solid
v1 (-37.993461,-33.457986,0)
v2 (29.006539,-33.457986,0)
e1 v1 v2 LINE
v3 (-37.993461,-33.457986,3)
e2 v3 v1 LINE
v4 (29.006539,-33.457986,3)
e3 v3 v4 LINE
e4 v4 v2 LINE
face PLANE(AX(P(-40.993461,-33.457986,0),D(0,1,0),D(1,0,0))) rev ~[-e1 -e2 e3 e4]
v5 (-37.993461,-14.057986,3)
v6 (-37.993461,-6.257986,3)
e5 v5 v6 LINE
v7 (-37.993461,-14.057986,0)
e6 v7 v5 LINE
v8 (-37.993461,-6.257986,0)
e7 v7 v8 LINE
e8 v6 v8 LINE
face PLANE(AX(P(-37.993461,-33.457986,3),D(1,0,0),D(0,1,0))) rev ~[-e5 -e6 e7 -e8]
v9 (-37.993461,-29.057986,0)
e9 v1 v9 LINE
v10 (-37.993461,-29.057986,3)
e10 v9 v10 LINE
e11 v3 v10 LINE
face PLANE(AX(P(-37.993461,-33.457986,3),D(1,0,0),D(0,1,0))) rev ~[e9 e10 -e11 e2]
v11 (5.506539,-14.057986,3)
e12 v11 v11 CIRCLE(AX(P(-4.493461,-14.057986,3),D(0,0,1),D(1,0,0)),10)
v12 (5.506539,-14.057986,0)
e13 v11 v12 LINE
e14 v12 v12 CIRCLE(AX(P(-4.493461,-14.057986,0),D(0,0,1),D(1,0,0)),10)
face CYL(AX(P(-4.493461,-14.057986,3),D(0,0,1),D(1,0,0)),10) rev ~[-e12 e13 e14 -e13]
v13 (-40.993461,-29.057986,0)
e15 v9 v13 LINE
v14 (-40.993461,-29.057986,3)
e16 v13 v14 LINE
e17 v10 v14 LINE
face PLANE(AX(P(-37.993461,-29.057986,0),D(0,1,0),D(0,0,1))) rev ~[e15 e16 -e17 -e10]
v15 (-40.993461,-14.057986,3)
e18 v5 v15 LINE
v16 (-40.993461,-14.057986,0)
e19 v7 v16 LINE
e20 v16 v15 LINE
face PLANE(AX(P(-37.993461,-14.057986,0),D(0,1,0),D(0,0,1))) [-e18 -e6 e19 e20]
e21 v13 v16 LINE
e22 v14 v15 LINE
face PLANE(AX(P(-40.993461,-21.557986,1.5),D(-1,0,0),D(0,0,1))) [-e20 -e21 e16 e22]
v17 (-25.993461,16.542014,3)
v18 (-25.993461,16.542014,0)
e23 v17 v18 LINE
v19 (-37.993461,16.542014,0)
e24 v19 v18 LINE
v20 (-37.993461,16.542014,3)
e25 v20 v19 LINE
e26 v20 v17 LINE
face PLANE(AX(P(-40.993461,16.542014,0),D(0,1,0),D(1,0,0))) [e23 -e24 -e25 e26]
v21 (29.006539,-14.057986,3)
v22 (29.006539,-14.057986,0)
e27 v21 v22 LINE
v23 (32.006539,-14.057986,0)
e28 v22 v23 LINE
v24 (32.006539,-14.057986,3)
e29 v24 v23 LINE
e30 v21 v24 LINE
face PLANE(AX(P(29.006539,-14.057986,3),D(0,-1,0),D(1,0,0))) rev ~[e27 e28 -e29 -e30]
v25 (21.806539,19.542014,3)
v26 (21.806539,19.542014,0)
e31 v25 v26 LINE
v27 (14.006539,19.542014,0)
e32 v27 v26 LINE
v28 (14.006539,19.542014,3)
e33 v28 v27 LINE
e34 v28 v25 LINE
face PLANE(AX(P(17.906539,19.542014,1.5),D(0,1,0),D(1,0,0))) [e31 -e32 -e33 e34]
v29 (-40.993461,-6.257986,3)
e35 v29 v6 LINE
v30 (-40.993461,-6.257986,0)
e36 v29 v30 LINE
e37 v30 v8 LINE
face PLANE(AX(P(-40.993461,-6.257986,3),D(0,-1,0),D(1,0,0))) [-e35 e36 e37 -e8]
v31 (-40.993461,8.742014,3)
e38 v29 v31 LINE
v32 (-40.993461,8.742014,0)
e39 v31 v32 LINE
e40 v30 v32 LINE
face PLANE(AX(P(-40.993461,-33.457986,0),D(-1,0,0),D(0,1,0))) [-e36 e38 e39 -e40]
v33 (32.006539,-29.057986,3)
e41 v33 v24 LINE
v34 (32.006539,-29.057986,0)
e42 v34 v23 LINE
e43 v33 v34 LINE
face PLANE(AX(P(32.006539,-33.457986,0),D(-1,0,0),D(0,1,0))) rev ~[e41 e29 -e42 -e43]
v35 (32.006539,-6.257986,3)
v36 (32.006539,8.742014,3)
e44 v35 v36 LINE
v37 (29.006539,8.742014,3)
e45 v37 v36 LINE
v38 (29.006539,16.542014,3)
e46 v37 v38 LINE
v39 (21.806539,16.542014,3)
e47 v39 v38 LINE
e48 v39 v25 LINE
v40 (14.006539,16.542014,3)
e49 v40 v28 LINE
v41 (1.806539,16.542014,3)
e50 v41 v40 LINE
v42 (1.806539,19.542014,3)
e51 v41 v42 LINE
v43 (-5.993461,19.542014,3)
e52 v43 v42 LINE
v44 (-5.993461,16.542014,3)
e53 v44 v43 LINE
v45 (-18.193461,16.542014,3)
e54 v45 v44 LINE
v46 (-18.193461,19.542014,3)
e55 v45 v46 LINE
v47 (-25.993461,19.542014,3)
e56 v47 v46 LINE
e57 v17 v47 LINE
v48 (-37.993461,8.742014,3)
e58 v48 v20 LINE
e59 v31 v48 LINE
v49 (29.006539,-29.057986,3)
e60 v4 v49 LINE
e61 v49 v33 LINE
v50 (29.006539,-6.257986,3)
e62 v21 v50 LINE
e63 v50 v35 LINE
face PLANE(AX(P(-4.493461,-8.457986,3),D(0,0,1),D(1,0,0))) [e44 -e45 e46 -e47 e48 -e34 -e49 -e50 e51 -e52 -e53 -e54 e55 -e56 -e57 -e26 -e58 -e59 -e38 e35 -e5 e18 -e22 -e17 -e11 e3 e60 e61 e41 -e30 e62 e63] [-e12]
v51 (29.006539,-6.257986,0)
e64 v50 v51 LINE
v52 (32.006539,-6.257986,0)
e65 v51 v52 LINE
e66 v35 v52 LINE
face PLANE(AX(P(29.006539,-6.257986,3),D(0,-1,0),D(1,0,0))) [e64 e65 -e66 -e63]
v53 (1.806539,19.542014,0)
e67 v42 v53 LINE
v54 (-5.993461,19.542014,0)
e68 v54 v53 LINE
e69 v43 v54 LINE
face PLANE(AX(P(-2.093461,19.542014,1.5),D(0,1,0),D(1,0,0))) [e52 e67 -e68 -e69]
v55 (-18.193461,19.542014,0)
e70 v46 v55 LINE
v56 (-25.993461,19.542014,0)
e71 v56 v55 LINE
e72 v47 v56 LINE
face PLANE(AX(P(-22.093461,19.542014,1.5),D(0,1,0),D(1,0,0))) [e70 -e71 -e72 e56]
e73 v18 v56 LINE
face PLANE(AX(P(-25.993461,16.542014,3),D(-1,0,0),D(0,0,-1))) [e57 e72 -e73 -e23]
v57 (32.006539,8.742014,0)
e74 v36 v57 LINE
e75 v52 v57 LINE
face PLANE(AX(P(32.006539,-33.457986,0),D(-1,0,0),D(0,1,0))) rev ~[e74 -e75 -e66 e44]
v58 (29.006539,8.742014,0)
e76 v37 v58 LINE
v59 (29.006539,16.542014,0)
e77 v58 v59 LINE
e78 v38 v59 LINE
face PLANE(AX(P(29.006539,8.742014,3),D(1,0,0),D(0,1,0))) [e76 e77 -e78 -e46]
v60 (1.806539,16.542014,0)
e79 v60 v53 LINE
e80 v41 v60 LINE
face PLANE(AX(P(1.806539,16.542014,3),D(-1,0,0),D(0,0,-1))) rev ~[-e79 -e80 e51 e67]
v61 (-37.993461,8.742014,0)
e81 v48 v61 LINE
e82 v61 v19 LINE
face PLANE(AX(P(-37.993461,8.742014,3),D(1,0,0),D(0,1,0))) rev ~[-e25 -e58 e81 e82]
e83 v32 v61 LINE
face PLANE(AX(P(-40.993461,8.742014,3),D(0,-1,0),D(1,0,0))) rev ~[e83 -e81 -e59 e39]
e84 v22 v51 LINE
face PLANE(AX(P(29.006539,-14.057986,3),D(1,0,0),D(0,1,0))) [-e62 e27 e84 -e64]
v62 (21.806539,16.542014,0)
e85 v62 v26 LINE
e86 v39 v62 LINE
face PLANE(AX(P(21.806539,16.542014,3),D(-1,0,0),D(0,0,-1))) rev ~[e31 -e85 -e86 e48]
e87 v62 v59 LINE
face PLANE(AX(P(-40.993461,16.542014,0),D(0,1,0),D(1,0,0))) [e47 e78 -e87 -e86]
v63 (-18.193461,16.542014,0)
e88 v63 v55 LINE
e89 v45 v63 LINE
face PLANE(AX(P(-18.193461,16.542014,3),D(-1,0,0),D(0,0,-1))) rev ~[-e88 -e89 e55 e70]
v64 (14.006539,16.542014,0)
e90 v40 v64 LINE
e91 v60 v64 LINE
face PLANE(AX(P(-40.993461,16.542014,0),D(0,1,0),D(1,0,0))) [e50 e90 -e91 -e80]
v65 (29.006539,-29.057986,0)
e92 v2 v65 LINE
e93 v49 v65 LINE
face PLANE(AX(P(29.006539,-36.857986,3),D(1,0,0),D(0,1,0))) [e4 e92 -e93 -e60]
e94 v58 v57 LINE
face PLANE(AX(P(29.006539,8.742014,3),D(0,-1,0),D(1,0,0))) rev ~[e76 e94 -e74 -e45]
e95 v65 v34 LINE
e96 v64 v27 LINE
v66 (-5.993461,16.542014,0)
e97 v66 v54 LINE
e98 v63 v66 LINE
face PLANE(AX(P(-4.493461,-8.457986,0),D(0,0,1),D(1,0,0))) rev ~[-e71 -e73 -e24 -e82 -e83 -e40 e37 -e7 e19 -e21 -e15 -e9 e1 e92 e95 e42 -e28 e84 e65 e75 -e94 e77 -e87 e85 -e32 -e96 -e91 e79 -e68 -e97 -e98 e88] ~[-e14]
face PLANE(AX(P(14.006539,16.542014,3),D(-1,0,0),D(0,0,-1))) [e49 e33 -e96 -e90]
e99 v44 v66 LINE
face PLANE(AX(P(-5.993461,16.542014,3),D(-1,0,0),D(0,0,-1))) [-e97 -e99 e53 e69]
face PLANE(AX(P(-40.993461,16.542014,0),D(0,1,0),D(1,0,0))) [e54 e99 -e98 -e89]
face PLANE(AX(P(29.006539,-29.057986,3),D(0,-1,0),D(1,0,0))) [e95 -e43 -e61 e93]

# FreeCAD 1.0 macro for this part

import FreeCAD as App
import Part
import Sketcher

V = App.Vector
Q = App.Units.Quantity

doc = App.newDocument("Part")
body = doc.addObject("PartDesign::Body", "Body")

# Sketch on XY plane
sketch1 = body.newObject("Sketcher::SketchObject", "Sketch")
sketch1.AttachmentSupport = (doc.getObject("XY_Plane"), [""])
sketch1.MapMode = "FlatFace"
sketch1.addGeometry(Part.LineSegment(V(-41, 17, 0), V(-41, -33, 0)), False)
sketch1.addGeometry(Part.LineSegment(V(-41, -33, 0), V(32, -33, 0)), False)
sketch1.addGeometry(Part.LineSegment(V(32, -33, 0), V(32, 17, 0)), False)
sketch1.addGeometry(Part.LineSegment(V(32, 17, 0), V(-41, 17, 0)), False)
sketch1.addConstraint(Sketcher.Constraint("Coincident", 0, 2, 1, 1))
sketch1.addConstraint(Sketcher.Constraint("Coincident", 1, 2, 2, 1))
sketch1.addConstraint(Sketcher.Constraint("Coincident", 2, 2, 3, 1))
sketch1.addConstraint(Sketcher.Constraint("Coincident", 3, 2, 0, 1))
sketch1.addConstraint(Sketcher.Constraint("Vertical", 0))
sketch1.addConstraint(Sketcher.Constraint("Horizontal", 1))
sketch1.addConstraint(Sketcher.Constraint("Vertical", 2))
sketch1.addConstraint(Sketcher.Constraint("Horizontal", 3))
sketch1.addConstraint(Sketcher.Constraint("DistanceX", 1, 1, 1, 2, Q("73 mm")))
sketch1.addConstraint(Sketcher.Constraint("DistanceY", 0, 2, 0, 1, Q("50 mm")))
sketch1.addConstraint(Sketcher.Constraint("DistanceX", 0, 2, -1, 1, Q("40.993461 mm")))
sketch1.addConstraint(Sketcher.Constraint("DistanceY", 0, 2, -1, 1, Q("33.457986 mm")))
pad1 = body.newObject("PartDesign::Pad", "Pad")
pad1.Profile = sketch1
pad1.Length = 3

# Sketch on XY plane
sketch2 = body.newObject("Sketcher::SketchObject", "Sketch001")
sketch2.AttachmentSupport = (doc.getObject("XY_Plane"), [""])
sketch2.MapMode = "FlatFace"
sketch2.AttachmentOffset = App.Placement(V(0, 0, 3), App.Rotation())
sketch2.addGeometry(Part.LineSegment(V(-41, 16.5, 0), V(-41, 8.7, 0)), False)
sketch2.addGeometry(Part.LineSegment(V(-41, 8.7, 0), V(-38, 8.7, 0)), False)
sketch2.addGeometry(Part.LineSegment(V(-38, 8.7, 0), V(-38, 16.5, 0)), False)
sketch2.addGeometry(Part.LineSegment(V(-38, 16.5, 0), V(-41, 16.5, 0)), False)
sketch2.addConstraint(Sketcher.Constraint("Coincident", 0, 2, 1, 1))
sketch2.addConstraint(Sketcher.Constraint("Coincident", 1, 2, 2, 1))
sketch2.addConstraint(Sketcher.Constraint("Coincident", 2, 2, 3, 1))
sketch2.addConstraint(Sketcher.Constraint("Coincident", 3, 2, 0, 1))
sketch2.addConstraint(Sketcher.Constraint("Vertical", 0))
sketch2.addConstraint(Sketcher.Constraint("Horizontal", 1))
sketch2.addConstraint(Sketcher.Constraint("Vertical", 2))
sketch2.addConstraint(Sketcher.Constraint("Horizontal", 3))
sketch2.addConstraint(Sketcher.Constraint("DistanceX", 1, 1, 1, 2, Q("3 mm")))
sketch2.addConstraint(Sketcher.Constraint("DistanceY", 0, 2, 0, 1, Q("7.8 mm")))
sketch2.addConstraint(Sketcher.Constraint("DistanceX", 0, 2, -1, 1, Q("40.993461 mm")))
sketch2.addConstraint(Sketcher.Constraint("DistanceY", -1, 1, 0, 2, Q("8.742014 mm")))
pocket1 = body.newObject("PartDesign::Pocket", "Pocket")
pocket1.Profile = sketch2
pocket1.Type = "ThroughAll"
doc.recompute()

linearpattern = body.newObject("PartDesign::LinearPattern", "LinearPattern")
linearpattern.Originals = [pocket1]
linearpattern.Direction = (doc.getObject("Y_Axis"), [""])
linearpattern.Mode = "offset"
linearpattern.Offset = 22.8
linearpattern.Occurrences = 3
linearpattern.Reversed = True
body.Tip = linearpattern

# Sketch on XY plane
sketch3 = body.newObject("Sketcher::SketchObject", "Sketch002")
sketch3.AttachmentSupport = (doc.getObject("XY_Plane"), [""])
sketch3.MapMode = "FlatFace"
sketch3.AttachmentOffset = App.Placement(V(0, 0, 3), App.Rotation())
sketch3.addGeometry(Part.LineSegment(V(29, 16.5, 0), V(29, 8.7, 0)), False)
sketch3.addGeometry(Part.LineSegment(V(29, 8.7, 0), V(32, 8.7, 0)), False)
sketch3.addGeometry(Part.LineSegment(V(32, 8.7, 0), V(32, 16.5, 0)), False)
sketch3.addGeometry(Part.LineSegment(V(32, 16.5, 0), V(29, 16.5, 0)), False)
sketch3.addConstraint(Sketcher.Constraint("Coincident", 0, 2, 1, 1))
sketch3.addConstraint(Sketcher.Constraint("Coincident", 1, 2, 2, 1))
sketch3.addConstraint(Sketcher.Constraint("Coincident", 2, 2, 3, 1))
sketch3.addConstraint(Sketcher.Constraint("Coincident", 3, 2, 0, 1))
sketch3.addConstraint(Sketcher.Constraint("Vertical", 0))
sketch3.addConstraint(Sketcher.Constraint("Horizontal", 1))
sketch3.addConstraint(Sketcher.Constraint("Vertical", 2))
sketch3.addConstraint(Sketcher.Constraint("Horizontal", 3))
sketch3.addConstraint(Sketcher.Constraint("DistanceX", 1, 1, 1, 2, Q("3 mm")))
sketch3.addConstraint(Sketcher.Constraint("DistanceY", 0, 2, 0, 1, Q("7.8 mm")))
sketch3.addConstraint(Sketcher.Constraint("DistanceX", -1, 1, 0, 2, Q("29.006539 mm")))
sketch3.addConstraint(Sketcher.Constraint("DistanceY", -1, 1, 0, 2, Q("8.742014 mm")))
pocket2 = body.newObject("PartDesign::Pocket", "Pocket001")
pocket2.Profile = sketch3
pocket2.Type = "ThroughAll"
doc.recompute()

linearpattern2 = body.newObject("PartDesign::LinearPattern", "LinearPattern001")
linearpattern2.Originals = [pocket2]
linearpattern2.Direction = (doc.getObject("Y_Axis"), [""])
linearpattern2.Mode = "offset"
linearpattern2.Offset = 22.8
linearpattern2.Occurrences = 4
linearpattern2.Reversed = True
body.Tip = linearpattern2

# Sketch on XY plane
sketch4 = body.newObject("Sketcher::SketchObject", "Sketch003")
sketch4.AttachmentSupport = (doc.getObject("XY_Plane"), [""])
sketch4.MapMode = "FlatFace"
sketch4.AttachmentOffset = App.Placement(V(0, 0, 3), App.Rotation())
sketch4.addGeometry(Part.LineSegment(V(-41, -14.1, 0), V(-41, -33.5, 0)), False)
sketch4.addGeometry(Part.LineSegment(V(-41, -33.5, 0), V(-38, -33.5, 0)), False)
sketch4.addGeometry(Part.LineSegment(V(-38, -33.5, 0), V(-38, -14.1, 0)), False)
sketch4.addGeometry(Part.LineSegment(V(-38, -14.1, 0), V(-41, -14.1, 0)), False)
sketch4.addConstraint(Sketcher.Constraint("Coincident", 0, 2, 1, 1))
sketch4.addConstraint(Sketcher.Constraint("Coincident", 1, 2, 2, 1))
sketch4.addConstraint(Sketcher.Constraint("Coincident", 2, 2, 3, 1))
sketch4.addConstraint(Sketcher.Constraint("Coincident", 3, 2, 0, 1))
sketch4.addConstraint(Sketcher.Constraint("Vertical", 0))
sketch4.addConstraint(Sketcher.Constraint("Horizontal", 1))
sketch4.addConstraint(Sketcher.Constraint("Vertical", 2))
sketch4.addConstraint(Sketcher.Constraint("Horizontal", 3))
sketch4.addConstraint(Sketcher.Constraint("DistanceX", 1, 1, 1, 2, Q("3 mm")))
sketch4.addConstraint(Sketcher.Constraint("DistanceY", 0, 2, 0, 1, Q("19.4 mm")))
sketch4.addConstraint(Sketcher.Constraint("DistanceX", 0, 2, -1, 1, Q("40.993461 mm")))
sketch4.addConstraint(Sketcher.Constraint("DistanceY", 0, 2, -1, 1, Q("33.457986 mm")))
pocket3 = body.newObject("PartDesign::Pocket", "Pocket002")
pocket3.Profile = sketch4
pocket3.Length = 10

# Sketch on XZ plane
sketch5 = body.newObject("Sketcher::SketchObject", "Sketch004")
sketch5.AttachmentSupport = (doc.getObject("XZ_Plane"), [""])
sketch5.MapMode = "FlatFace"
sketch5.AttachmentOffset = App.Placement(V(0, 0, -16.542014), App.Rotation())
sketch5.addGeometry(Part.LineSegment(V(-26, 0, 0), V(-26, 3, 0)), False)
sketch5.addGeometry(Part.LineSegment(V(-26, 3, 0), V(-18.2, 3, 0)), False)
sketch5.addGeometry(Part.LineSegment(V(-18.2, 3, 0), V(-18.2, 0, 0)), False)
sketch5.addGeometry(Part.LineSegment(V(-18.2, 0, 0), V(-26, 0, 0)), False)
sketch5.addConstraint(Sketcher.Constraint("Coincident", 0, 2, 1, 1))
sketch5.addConstraint(Sketcher.Constraint("Coincident", 1, 2, 2, 1))
sketch5.addConstraint(Sketcher.Constraint("Coincident", 2, 2, 3, 1))
sketch5.addConstraint(Sketcher.Constraint("Coincident", 3, 2, 0, 1))
sketch5.addConstraint(Sketcher.Constraint("Vertical", 0))
sketch5.addConstraint(Sketcher.Constraint("Horizontal", 1))
sketch5.addConstraint(Sketcher.Constraint("Vertical", 2))
sketch5.addConstraint(Sketcher.Constraint("Horizontal", 3))
sketch5.addConstraint(Sketcher.Constraint("PointOnObject", 2, 2, -1))
sketch5.addConstraint(Sketcher.Constraint("DistanceY", 0, 1, 0, 2, Q("3 mm")))
sketch5.addConstraint(Sketcher.Constraint("DistanceX", 1, 1, 1, 2, Q("7.8 mm")))
sketch5.addConstraint(Sketcher.Constraint("DistanceX", 0, 2, -1, 1, Q("25.993461 mm")))
pad2 = body.newObject("PartDesign::Pad", "Pad001")
pad2.Profile = sketch5
pad2.Length = 3
pad2.Reversed = True
doc.recompute()

linearpattern3 = body.newObject("PartDesign::LinearPattern", "LinearPattern002")
linearpattern3.Originals = [pad2]
linearpattern3.Direction = (doc.getObject("X_Axis"), [""])
linearpattern3.Mode = "offset"
linearpattern3.Offset = 20
linearpattern3.Occurrences = 3
body.Tip = linearpattern3

# Sketch on YZ plane
sketch6 = body.newObject("Sketcher::SketchObject", "Sketch005")
sketch6.AttachmentSupport = (doc.getObject("YZ_Plane"), [""])
sketch6.MapMode = "FlatFace"
sketch6.AttachmentOffset = App.Placement(V(0, 0, -37.993461), App.Rotation())
sketch6.addGeometry(Part.LineSegment(V(-14.1, 0, 0), V(-29.1, 0, 0)), False)
sketch6.addGeometry(Part.LineSegment(V(-29.1, 0, 0), V(-29.1, 3, 0)), False)
sketch6.addGeometry(Part.LineSegment(V(-29.1, 3, 0), V(-14.1, 3, 0)), False)
sketch6.addGeometry(Part.LineSegment(V(-14.1, 3, 0), V(-14.1, 0, 0)), False)
sketch6.addConstraint(Sketcher.Constraint("Coincident", 0, 2, 1, 1))
sketch6.addConstraint(Sketcher.Constraint("Coincident", 1, 2, 2, 1))
sketch6.addConstraint(Sketcher.Constraint("Coincident", 2, 2, 3, 1))
sketch6.addConstraint(Sketcher.Constraint("Coincident", 3, 2, 0, 1))
sketch6.addConstraint(Sketcher.Constraint("Horizontal", 0))
sketch6.addConstraint(Sketcher.Constraint("Vertical", 1))
sketch6.addConstraint(Sketcher.Constraint("Horizontal", 2))
sketch6.addConstraint(Sketcher.Constraint("Vertical", 3))
sketch6.addConstraint(Sketcher.Constraint("PointOnObject", 0, 2, -1))
sketch6.addConstraint(Sketcher.Constraint("DistanceX", 0, 2, 0, 1, Q("15 mm")))
sketch6.addConstraint(Sketcher.Constraint("DistanceY", 1, 1, 1, 2, Q("3 mm")))
sketch6.addConstraint(Sketcher.Constraint("DistanceX", 0, 2, -1, 1, Q("29.057986 mm")))
pad3 = body.newObject("PartDesign::Pad", "Pad002")
pad3.Profile = sketch6
pad3.Length = 3
pad3.Reversed = True

# Sketch on XY plane
sketch7 = body.newObject("Sketcher::SketchObject", "Sketch006")
sketch7.AttachmentSupport = (doc.getObject("XY_Plane"), [""])
sketch7.MapMode = "FlatFace"
sketch7.AttachmentOffset = App.Placement(V(0, 0, 3), App.Rotation())
sketch7.addGeometry(Part.Circle(V(-4, -14, 0), V(0, 0, 1), 10), False)
sketch7.addConstraint(Sketcher.Constraint("Diameter", 0, Q("20 mm")))
sketch7.addConstraint(Sketcher.Constraint("DistanceX", 0, 3, -1, 1, Q("4.493461 mm")))
sketch7.addConstraint(Sketcher.Constraint("DistanceY", 0, 3, -1, 1, Q("14.057986 mm")))
pocket4 = body.newObject("PartDesign::Pocket", "Pocket003")
pocket4.Profile = sketch7
pocket4.Type = "UpToFirst"

doc.recompute()
